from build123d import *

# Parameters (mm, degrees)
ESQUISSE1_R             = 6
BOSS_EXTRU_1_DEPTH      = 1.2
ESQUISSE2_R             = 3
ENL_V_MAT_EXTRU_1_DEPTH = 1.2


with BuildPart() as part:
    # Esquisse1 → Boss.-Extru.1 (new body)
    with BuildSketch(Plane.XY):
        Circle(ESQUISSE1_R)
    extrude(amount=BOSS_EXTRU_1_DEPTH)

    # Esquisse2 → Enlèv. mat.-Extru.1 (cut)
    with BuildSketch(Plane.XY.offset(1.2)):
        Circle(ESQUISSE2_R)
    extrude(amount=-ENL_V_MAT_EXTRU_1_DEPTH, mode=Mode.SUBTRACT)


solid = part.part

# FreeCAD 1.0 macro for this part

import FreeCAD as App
import Part
import Sketcher

V = App.Vector

doc = App.newDocument("Part")
body = doc.addObject("PartDesign::Body", "Body")

sketch1 = body.newObject("Sketcher::SketchObject", "Sketch")
sketch1.AttachmentSupport = (doc.getObject("XY_Plane"), [""])
sketch1.MapMode = "FlatFace"
sketch1.addGeometry(Part.Circle(V(0, 0, 0), V(0, 0, 1), 6), False)
sketch1.addConstraint([
    Sketcher.Constraint("Coincident", 0, 3, -1, 1),
    Sketcher.Constraint("Diameter", 0, 12.0),
])
pad1 = body.newObject("PartDesign::Pad", "Pad")
pad1.Profile = sketch1
pad1.Length = 1.2

sketch2 = body.newObject("Sketcher::SketchObject", "Sketch001")
sketch2.AttachmentSupport = (doc.getObject("XY_Plane"), [""])
sketch2.MapMode = "FlatFace"
sketch2.AttachmentOffset = App.Placement(V(0, 0, 1.2), App.Rotation())
sketch2.addGeometry(Part.Circle(V(0, 0, 0), V(0, 0, 1), 3), False)
sketch2.addConstraint([
    Sketcher.Constraint("Coincident", 0, 3, -1, 1),
    Sketcher.Constraint("Diameter", 0, 6.0),
])
pocket1 = body.newObject("PartDesign::Pocket", "Pocket")
pocket1.Profile = sketch2
pocket1.Length = 1.2

doc.recompute()
